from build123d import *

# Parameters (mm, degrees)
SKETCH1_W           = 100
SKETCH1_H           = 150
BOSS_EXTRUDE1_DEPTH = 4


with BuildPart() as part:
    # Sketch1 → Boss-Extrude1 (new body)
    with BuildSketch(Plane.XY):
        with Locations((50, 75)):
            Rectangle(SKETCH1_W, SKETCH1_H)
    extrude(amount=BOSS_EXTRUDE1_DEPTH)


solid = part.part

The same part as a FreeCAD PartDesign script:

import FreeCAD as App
import Part
import Sketcher

V = App.Vector
Q = App.Units.Quantity


def add_polygon(sketch, points):
    """Adds a closed chain of lines whose ends are joined by coincident constraints."""
    first, n = sketch.GeometryCount, len(points)
    for a, b in zip(points, points[1:] + points[:1]):
        sketch.addGeometry(Part.LineSegment(App.Vector(*a, 0), App.Vector(*b, 0)), False)
    for i in range(n):
        sketch.addConstraint(Sketcher.Constraint("Coincident", first + i, 2, first + (i + 1) % n, 1))

doc = App.newDocument("Part")
params = doc.addObject("Spreadsheet::Sheet", "Params")
for row, (alias, value) in enumerate([
    ("sketch1_width", "100 mm"),
    ("sketch1_height", "150 mm"),
    ("pad1_length", "4 mm"),
], start=1):
    params.set(f"A{row}", alias)
    params.set(f"B{row}", "=" + value)
    params.setAlias(f"B{row}", alias)

body = doc.addObject("PartDesign::Body", "Body")

# Sketch on XY plane
sketch1 = body.newObject("Sketcher::SketchObject", "Sketch")
sketch1.AttachmentSupport = (doc.getObject("XY_Plane"), [""])
sketch1.MapMode = "FlatFace"
add_polygon(sketch1, [(0, 150), (0, 0), (100, 0), (100, 150)])  # lines 0-3
sketch1.addConstraint(Sketcher.Constraint("Vertical", 0))
sketch1.addConstraint(Sketcher.Constraint("Horizontal", 1))
sketch1.addConstraint(Sketcher.Constraint("Vertical", 2))
sketch1.addConstraint(Sketcher.Constraint("Horizontal", 3))
sketch1.addConstraint(Sketcher.Constraint("Coincident", 0, 2, -1, 1))
sketch1.addConstraint(Sketcher.Constraint("DistanceX", 1, 1, 1, 2, Q("100 mm")))
sketch1.addConstraint(Sketcher.Constraint("DistanceY", 0, 2, 0, 1, Q("150 mm")))
sketch1.setExpression("Constraints[9]", "Params.sketch1_width")
sketch1.setExpression("Constraints[10]", "Params.sketch1_height")
pad1 = body.newObject("PartDesign::Pad", "Pad")
pad1.Profile = sketch1
pad1.setExpression("Length", "Params.pad1_length")

doc.recompute()
